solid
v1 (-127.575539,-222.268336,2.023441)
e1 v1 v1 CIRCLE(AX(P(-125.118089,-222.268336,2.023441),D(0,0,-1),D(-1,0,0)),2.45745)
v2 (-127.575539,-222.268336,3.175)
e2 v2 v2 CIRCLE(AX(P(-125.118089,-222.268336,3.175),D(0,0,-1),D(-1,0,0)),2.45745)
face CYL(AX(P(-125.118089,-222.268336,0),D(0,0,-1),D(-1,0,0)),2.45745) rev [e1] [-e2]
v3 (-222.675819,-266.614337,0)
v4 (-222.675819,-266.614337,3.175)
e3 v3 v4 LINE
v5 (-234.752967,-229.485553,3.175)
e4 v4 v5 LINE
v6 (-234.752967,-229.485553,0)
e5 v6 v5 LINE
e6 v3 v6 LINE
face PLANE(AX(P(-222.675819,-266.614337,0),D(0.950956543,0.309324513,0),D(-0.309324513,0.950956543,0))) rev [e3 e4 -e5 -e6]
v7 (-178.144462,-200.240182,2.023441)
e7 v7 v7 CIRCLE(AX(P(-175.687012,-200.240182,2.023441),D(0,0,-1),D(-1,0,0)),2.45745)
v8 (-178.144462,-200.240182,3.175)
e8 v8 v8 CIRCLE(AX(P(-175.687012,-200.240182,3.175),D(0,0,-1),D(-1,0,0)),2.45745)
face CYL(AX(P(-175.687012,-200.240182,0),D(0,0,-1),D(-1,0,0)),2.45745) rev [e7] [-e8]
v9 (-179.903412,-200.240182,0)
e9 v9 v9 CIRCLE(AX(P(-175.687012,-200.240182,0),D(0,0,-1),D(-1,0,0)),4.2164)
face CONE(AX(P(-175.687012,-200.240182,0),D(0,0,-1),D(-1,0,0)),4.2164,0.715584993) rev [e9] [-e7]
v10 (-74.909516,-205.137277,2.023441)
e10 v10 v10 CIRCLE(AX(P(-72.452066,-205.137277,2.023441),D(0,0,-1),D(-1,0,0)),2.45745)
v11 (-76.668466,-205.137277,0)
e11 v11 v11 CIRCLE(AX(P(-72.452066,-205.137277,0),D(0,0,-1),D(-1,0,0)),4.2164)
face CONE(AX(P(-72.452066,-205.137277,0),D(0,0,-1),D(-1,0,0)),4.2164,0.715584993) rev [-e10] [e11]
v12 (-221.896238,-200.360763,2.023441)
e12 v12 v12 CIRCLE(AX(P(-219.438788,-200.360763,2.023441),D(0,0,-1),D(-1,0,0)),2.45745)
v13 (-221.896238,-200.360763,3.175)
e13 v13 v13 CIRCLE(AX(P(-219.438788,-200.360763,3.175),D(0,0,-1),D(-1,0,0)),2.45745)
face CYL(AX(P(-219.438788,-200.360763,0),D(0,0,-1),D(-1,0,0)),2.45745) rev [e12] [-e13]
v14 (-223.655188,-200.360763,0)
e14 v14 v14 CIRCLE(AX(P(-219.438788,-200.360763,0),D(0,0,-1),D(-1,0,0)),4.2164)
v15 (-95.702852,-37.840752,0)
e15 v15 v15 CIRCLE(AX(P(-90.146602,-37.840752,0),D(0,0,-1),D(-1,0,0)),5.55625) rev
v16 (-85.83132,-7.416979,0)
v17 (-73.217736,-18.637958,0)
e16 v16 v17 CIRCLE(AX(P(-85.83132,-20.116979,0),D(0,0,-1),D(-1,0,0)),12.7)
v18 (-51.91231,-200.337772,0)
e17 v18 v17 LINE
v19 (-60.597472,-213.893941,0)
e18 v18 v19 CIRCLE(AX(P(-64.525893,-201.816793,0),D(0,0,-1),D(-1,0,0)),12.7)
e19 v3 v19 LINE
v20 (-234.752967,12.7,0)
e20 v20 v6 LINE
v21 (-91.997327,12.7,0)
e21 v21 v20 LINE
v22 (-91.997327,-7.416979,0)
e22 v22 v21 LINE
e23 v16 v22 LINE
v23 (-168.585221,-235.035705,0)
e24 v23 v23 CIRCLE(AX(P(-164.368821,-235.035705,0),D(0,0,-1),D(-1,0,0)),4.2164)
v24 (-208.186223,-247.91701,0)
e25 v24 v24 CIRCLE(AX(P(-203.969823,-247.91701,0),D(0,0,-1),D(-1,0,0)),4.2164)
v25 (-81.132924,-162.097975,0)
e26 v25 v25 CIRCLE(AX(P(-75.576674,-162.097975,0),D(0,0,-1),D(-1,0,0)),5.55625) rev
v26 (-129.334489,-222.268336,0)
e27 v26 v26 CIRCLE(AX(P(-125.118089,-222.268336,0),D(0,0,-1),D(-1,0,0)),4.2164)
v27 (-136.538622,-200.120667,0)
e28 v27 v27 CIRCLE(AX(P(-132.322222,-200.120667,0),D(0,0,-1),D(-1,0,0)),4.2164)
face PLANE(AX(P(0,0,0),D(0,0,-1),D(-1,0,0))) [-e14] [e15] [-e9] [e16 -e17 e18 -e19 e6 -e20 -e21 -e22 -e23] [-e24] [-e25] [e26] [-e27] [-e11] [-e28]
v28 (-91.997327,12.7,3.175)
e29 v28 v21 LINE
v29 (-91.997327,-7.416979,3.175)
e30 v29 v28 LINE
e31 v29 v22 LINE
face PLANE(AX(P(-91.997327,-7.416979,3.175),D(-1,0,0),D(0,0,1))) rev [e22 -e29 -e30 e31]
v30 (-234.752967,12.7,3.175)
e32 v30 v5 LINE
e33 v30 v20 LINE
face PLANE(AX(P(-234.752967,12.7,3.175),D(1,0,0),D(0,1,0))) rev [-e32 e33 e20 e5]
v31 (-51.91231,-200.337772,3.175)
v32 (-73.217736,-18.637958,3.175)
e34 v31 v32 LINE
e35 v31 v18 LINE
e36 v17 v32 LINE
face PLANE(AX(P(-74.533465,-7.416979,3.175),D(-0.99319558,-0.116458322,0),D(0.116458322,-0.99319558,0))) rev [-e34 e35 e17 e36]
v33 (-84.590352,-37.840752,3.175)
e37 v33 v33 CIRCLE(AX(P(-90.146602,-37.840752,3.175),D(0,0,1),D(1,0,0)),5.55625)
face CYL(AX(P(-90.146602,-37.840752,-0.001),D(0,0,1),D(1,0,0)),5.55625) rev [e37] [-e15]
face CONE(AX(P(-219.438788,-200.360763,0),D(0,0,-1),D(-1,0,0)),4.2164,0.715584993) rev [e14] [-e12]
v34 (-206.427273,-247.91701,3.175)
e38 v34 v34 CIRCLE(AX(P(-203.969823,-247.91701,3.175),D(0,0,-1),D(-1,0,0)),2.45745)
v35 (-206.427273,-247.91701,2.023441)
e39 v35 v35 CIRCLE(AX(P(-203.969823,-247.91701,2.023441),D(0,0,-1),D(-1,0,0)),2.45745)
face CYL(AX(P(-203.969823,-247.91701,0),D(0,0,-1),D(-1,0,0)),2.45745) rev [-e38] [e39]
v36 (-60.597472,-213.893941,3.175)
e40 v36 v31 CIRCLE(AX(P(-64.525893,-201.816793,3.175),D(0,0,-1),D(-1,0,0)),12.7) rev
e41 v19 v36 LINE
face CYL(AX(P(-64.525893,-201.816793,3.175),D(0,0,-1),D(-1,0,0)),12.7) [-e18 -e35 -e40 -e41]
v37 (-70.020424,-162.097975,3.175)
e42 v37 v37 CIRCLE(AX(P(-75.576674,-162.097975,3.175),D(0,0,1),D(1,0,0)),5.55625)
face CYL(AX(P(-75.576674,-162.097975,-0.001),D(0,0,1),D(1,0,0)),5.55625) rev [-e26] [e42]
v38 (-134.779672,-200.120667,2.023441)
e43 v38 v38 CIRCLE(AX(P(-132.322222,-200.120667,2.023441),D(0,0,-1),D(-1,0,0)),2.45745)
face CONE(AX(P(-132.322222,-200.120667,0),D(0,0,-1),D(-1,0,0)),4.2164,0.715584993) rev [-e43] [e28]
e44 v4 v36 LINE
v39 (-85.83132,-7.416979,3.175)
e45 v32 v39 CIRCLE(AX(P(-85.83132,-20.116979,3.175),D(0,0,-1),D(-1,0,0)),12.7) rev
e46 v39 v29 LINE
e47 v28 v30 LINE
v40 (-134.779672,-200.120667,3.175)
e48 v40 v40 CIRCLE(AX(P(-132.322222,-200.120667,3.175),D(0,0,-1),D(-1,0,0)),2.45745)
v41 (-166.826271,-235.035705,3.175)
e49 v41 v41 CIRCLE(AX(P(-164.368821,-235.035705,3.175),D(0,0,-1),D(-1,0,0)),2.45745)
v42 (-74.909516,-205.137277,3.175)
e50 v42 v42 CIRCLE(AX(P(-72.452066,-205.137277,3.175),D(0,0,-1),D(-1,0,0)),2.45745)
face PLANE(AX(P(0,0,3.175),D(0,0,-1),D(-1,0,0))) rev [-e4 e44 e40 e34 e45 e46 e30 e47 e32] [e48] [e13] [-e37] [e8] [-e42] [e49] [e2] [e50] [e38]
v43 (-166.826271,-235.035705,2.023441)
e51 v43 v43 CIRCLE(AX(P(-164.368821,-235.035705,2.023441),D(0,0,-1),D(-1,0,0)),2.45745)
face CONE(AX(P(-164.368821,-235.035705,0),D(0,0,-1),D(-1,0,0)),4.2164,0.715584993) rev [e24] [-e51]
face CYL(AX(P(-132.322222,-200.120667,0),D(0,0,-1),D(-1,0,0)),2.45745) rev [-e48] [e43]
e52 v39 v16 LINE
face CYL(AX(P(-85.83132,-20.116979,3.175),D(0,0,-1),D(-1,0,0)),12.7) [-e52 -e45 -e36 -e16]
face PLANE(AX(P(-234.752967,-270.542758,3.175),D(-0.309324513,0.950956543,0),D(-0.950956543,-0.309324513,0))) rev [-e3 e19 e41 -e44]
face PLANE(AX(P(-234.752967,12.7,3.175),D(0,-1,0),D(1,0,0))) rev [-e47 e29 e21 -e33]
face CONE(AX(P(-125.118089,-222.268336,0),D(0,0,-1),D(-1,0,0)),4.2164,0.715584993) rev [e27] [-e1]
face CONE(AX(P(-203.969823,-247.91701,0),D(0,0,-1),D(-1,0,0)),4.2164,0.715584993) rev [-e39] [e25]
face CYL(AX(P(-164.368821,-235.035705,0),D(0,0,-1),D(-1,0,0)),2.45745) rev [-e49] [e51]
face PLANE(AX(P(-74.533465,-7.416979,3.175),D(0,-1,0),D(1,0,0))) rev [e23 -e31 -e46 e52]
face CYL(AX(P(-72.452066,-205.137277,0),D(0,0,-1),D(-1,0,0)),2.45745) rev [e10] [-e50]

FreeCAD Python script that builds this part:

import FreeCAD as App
import Part
import Sketcher
Q = App.Units.Quantity


def edges_at(feature, points):
    """Names of the edges that pass closest to the given points."""
    edges = feature.Shape.Edges
    near = lambda p: min(range(len(edges)), key=lambda i: edges[i].distToShape(Part.Vertex(*p))[0])
    return sorted({f"Edge{near(p) + 1}" for p in points})

doc = App.newDocument("Part")
body = doc.addObject("PartDesign::Body", "Body")

# Sketch on XY plane
sketch1 = doc.addObject("Sketcher::SketchObject", "Sketch")
body.addObject(sketch1)
sketch1.AttachmentSupport = (doc.XY_Plane, [""])
sketch1.MapMode = "FlatFace"
sketch1.addGeometry([
    Part.LineSegment(App.Vector(-91.997327, 12.7, 0), App.Vector(-234.752967, 12.7, 0)),  # 0
    Part.LineSegment(App.Vector(-234.752967, 12.7, 0), App.Vector(-234.752967, -270.542758, 0)),  # 1
    Part.LineSegment(App.Vector(-234.752967, -270.542758, 0), App.Vector(-50.700252, -210.674601, 0)),  # 2
    Part.LineSegment(App.Vector(-50.700252, -210.674601, 0), App.Vector(-74.533465, -7.416979, 0)),  # 3
    Part.LineSegment(App.Vector(-74.533465, -7.416979, 0), App.Vector(-91.997327, -7.416979, 0)),  # 4
    Part.LineSegment(App.Vector(-91.997327, -7.416979, 0), App.Vector(-91.997327, 12.7, 0)),  # 5
], False)
sketch1.addConstraint([
    Sketcher.Constraint("Coincident", 0, 2, 1, 1),
    Sketcher.Constraint("Coincident", 1, 2, 2, 1),
    Sketcher.Constraint("Coincident", 2, 2, 3, 1),
    Sketcher.Constraint("Coincident", 3, 2, 4, 1),
    Sketcher.Constraint("Coincident", 4, 2, 5, 1),
    Sketcher.Constraint("Coincident", 5, 2, 0, 1),
    Sketcher.Constraint("Horizontal", 0),
    Sketcher.Constraint("Vertical", 1),
    Sketcher.Constraint("Horizontal", 4),
    Sketcher.Constraint("Vertical", 5),
    Sketcher.Constraint("DistanceY", -1, 1, 0, 2, Q("0.5 in")),
    Sketcher.Constraint("DistanceX", 0, 2, 0, 1, 142.75564),
    Sketcher.Constraint("DistanceY", 1, 2, 1, 1, 283.242758),
    Sketcher.Constraint("DistanceY", 5, 1, 5, 2, 20.116979),
    Sketcher.Constraint("DistanceY", 2, 2, -1, 1, 210.674601),
    Sketcher.Constraint("Distance", 2, 193.544822),
    Sketcher.Constraint("DistanceX", 4, 2, 4, 1, 17.463862),
    Sketcher.Constraint("DistanceX", 0, 2, -1, 1, 234.752967),
])
pad1 = doc.addObject("PartDesign::Pad", "Pad")
body.addObject(pad1)
pad1.Profile = sketch1
pad1.Length = Q("0.125 in")
doc.recompute()

fillet = doc.addObject("PartDesign::Fillet", "Fillet")
body.addObject(fillet)
fillet.Base = (pad1, edges_at(pad1, [(-74.533, -7.417, 1.587), (-50.7, -210.675, 1.587)]))
fillet.Radius = Q("0.5 in")

# Sketch on XY plane
sketch2 = doc.addObject("Sketcher::SketchObject", "Sketch001")
body.addObject(sketch2)
sketch2.AttachmentSupport = (doc.XY_Plane, [""])
sketch2.MapMode = "FlatFace"
sketch2.AttachmentOffset = App.Placement(App.Vector(0, 0, 0.125 * 25.4), App.Rotation())
sketch2.addGeometry([
    Part.LineSegment(App.Vector(-234.752967, -270.542758, 0), App.Vector(-222.675819, -266.614337, 0)),
    Part.LineSegment(App.Vector(-222.675819, -266.614337, 0), App.Vector(-234.752967, -229.485553, 0)),
    Part.LineSegment(App.Vector(-234.752967, -229.485553, 0), App.Vector(-234.752967, -270.542758, 0)),
], False)
sketch2.addConstraint([
    Sketcher.Constraint("Coincident", 0, 2, 1, 1),
    Sketcher.Constraint("Coincident", 1, 2, 2, 1),
    Sketcher.Constraint("Coincident", 2, 2, 0, 1),
    Sketcher.Constraint("Vertical", 2),
    Sketcher.Constraint("Perpendicular", 0, 1),
    Sketcher.Constraint("Distance", 0, Q("0.5 in")),
    Sketcher.Constraint("DistanceY", 2, 2, 2, 1, 41.057205),
    Sketcher.Constraint("DistanceX", 0, 2, -1, 1, 222.675819),
    Sketcher.Constraint("DistanceY", 2, 2, -1, 1, 270.542758),
])
pocket1 = doc.addObject("PartDesign::Pocket", "Pocket")
body.addObject(pocket1)
pocket1.Profile = sketch2
pocket1.Type = "ThroughAll"

# Sketch on YZ plane
sketch3 = doc.addObject("Sketcher::SketchObject", "Sketch002")
body.addObject(sketch3)
sketch3.AttachmentSupport = (doc.YZ_Plane, [""])
sketch3.MapMode = "FlatFace"
sketch3.AttachmentOffset = App.Placement(App.Vector(0, 0, -203.969823), App.Rotation())
sketch3.addGeometry([
    Part.LineSegment(App.Vector(-247.91701, 3.175, 0), App.Vector(-247.91701, 0, 0)),  # 0
    Part.LineSegment(App.Vector(-247.91701, 0, 0), App.Vector(-243.70061, 0, 0)),  # 1
    Part.LineSegment(App.Vector(-243.70061, 0, 0), App.Vector(-245.45956, 2.023441, 0)),  # 2
    Part.LineSegment(App.Vector(-245.45956, 2.023441, 0), App.Vector(-245.45956, 3.175, 0)),  # 3
    Part.LineSegment(App.Vector(-245.45956, 3.175, 0), App.Vector(-247.91701, 3.175, 0)),  # 4
], False)
sketch3.addGeometry(Part.LineSegment(App.Vector(-247.91701, 0, 0), App.Vector(-247.91701, 3.175, 0)), True)  # axis
sketch3.addConstraint([
    Sketcher.Constraint("Coincident", 0, 2, 1, 1),
    Sketcher.Constraint("Coincident", 1, 2, 2, 1),
    Sketcher.Constraint("Coincident", 2, 2, 3, 1),
    Sketcher.Constraint("Coincident", 3, 2, 4, 1),
    Sketcher.Constraint("Coincident", 4, 2, 0, 1),
    Sketcher.Constraint("Vertical", 0),
    Sketcher.Constraint("Horizontal", 1),
    Sketcher.Constraint("Vertical", 3),
    Sketcher.Constraint("Horizontal", 4),
    Sketcher.Constraint("Vertical", 5),
    Sketcher.Constraint("Coincident", 5, 1, 0, 2),
    Sketcher.Constraint("PointOnObject", 0, 2, -1),
    Sketcher.Constraint("Horizontal", 3, 2, 5, 2),
    Sketcher.Constraint("Angle", 2, Q("131 deg")),
    Sketcher.Constraint("DistanceX", 1, 1, 1, 2, Q("0.166 in")),
    Sketcher.Constraint("DistanceY", 0, 2, 0, 1, Q("0.125 in")),
    Sketcher.Constraint("DistanceX", 4, 2, 4, 1, 2.45745),
    Sketcher.Constraint("DistanceX", 0, 2, -1, 1, 247.91701),
])
groove = doc.addObject("PartDesign::Groove", "Groove")
body.addObject(groove)
groove.Profile = sketch3
groove.ReferenceAxis = (sketch3, ["Axis0"])
groove.Angle = 360
doc.recompute()

datumline = doc.addObject("PartDesign::Line", "DatumLine")
body.addObject(datumline)
datumline.Placement = App.Placement(App.Vector(0, 0, 0), App.Rotation(App.Vector(0, 0, 1), App.Vector(0.950956543, 0.309324513, 0)))
linearpattern = doc.addObject("PartDesign::LinearPattern", "LinearPattern")
body.addObject(linearpattern)
linearpattern.Originals = [groove]
linearpattern.Direction = (datumline, [""])
linearpattern.Mode = "offset"
linearpattern.Offset = 41.643336
linearpattern.Occurrences = 2
body.Tip = linearpattern
doc.recompute()

datumline2 = doc.addObject("PartDesign::Line", "DatumLine001")
body.addObject(datumline2)
datumline2.Placement = App.Placement(App.Vector(0, 0, 0), App.Rotation(App.Vector(0, 0, 1), App.Vector(0.510201208, 0.860055072, 0)))
linearpattern2 = doc.addObject("PartDesign::LinearPattern", "LinearPattern001")
body.addObject(linearpattern2)
linearpattern2.Originals = [groove]
linearpattern2.Direction = (datumline2, [""])
linearpattern2.Mode = "offset"
linearpattern2.Offset = 55.434622
linearpattern2.Occurrences = 2
body.Tip = linearpattern2
doc.recompute()

datumline3 = doc.addObject("PartDesign::Line", "DatumLine002")
body.addObject(datumline3)
datumline3.Placement = App.Placement(App.Vector(0, 0, 0), App.Rotation(App.Vector(0, 0, 1), App.Vector(-0.309324513, 0.950956543, 0)))
linearpattern3 = doc.addObject("PartDesign::LinearPattern", "LinearPattern002")
body.addObject(linearpattern3)
linearpattern3.Originals = [groove]
linearpattern3.Direction = (datumline3, [""])
linearpattern3.Mode = "offset"
linearpattern3.Offset = 50.008854
linearpattern3.Occurrences = 2
body.Tip = linearpattern3
doc.recompute()

datumline4 = doc.addObject("PartDesign::Line", "DatumLine003")
body.addObject(datumline4)
datumline4.Placement = App.Placement(App.Vector(0, 0, 0), App.Rotation(App.Vector(0, 0, 1), App.Vector(0.950956543, 0.309324513, 0)))
linearpattern4 = doc.addObject("PartDesign::LinearPattern", "LinearPattern003")
body.addObject(linearpattern4)
linearpattern4.Originals = [groove]
linearpattern4.Direction = (datumline4, [""])
linearpattern4.Mode = "offset"
linearpattern4.Offset = 82.918336
linearpattern4.Occurrences = 2
body.Tip = linearpattern4
doc.recompute()

datumline5 = doc.addObject("PartDesign::Line", "DatumLine004")
body.addObject(datumline5)
datumline5.Placement = App.Placement(App.Vector(0, 0, 0), App.Rotation(App.Vector(0, 0, 1), App.Vector(0.83188266, 0.554951566, 0)))
linearpattern5 = doc.addObject("PartDesign::LinearPattern", "LinearPattern004")
body.addObject(linearpattern5)
linearpattern5.Originals = [groove]
linearpattern5.Direction = (datumline5, [""])
linearpattern5.Mode = "offset"
linearpattern5.Offset = 86.127053
linearpattern5.Occurrences = 2
body.Tip = linearpattern5
doc.recompute()

datumline6 = doc.addObject("PartDesign::Line", "DatumLine005")
body.addObject(datumline6)
datumline6.Placement = App.Placement(App.Vector(0, 0, 0), App.Rotation(App.Vector(0, 0, 1), App.Vector(0.950956543, 0.309324513, 0)))
linearpattern6 = doc.addObject("PartDesign::LinearPattern", "LinearPattern005")
body.addObject(linearpattern6)
linearpattern6.Originals = [groove]
linearpattern6.Direction = (datumline6, [""])
linearpattern6.Mode = "offset"
linearpattern6.Offset = 138.300492
linearpattern6.Occurrences = 2
body.Tip = linearpattern6

# Sketch on XY plane
sketch4 = doc.addObject("Sketcher::SketchObject", "Sketch003")
body.addObject(sketch4)
sketch4.AttachmentSupport = (doc.XY_Plane, [""])
sketch4.MapMode = "FlatFace"
sketch4.AttachmentOffset = App.Placement(App.Vector(0, 0, 0.125 * 25.4), App.Rotation())
sketch4.addGeometry(Part.Circle(App.Vector(-90.146602, -37.840752, 0), App.Vector(0, 0, 1), 5.55625), False)
sketch4.addConstraint([
    Sketcher.Constraint("Diameter", 0, Q("0.4375 in")),
    Sketcher.Constraint("DistanceX", 0, 3, -1, 1, 90.146602),
    Sketcher.Constraint("DistanceY", 0, 3, -1, 1, 37.840752),
])
pocket2 = doc.addObject("PartDesign::Pocket", "Pocket001")
body.addObject(pocket2)
pocket2.Profile = sketch4
pocket2.Type = "UpToFirst"

# Sketch on XY plane
sketch5 = doc.addObject("Sketcher::SketchObject", "Sketch004")
body.addObject(sketch5)
sketch5.AttachmentSupport = (doc.XY_Plane, [""])
sketch5.MapMode = "FlatFace"
sketch5.AttachmentOffset = App.Placement(App.Vector(0, 0, 0.125 * 25.4), App.Rotation())
sketch5.addGeometry(Part.Circle(App.Vector(-75.576674, -162.097975, 0), App.Vector(0, 0, 1), 5.55625), False)
sketch5.addConstraint([
    Sketcher.Constraint("Diameter", 0, Q("0.4375 in")),
    Sketcher.Constraint("DistanceX", 0, 3, -1, 1, 75.576674),
    Sketcher.Constraint("DistanceY", 0, 3, -1, 1, 162.097975),
])
pocket3 = doc.addObject("PartDesign::Pocket", "Pocket002")
body.addObject(pocket3)
pocket3.Profile = sketch5
pocket3.Type = "UpToFirst"

doc.recompute()
